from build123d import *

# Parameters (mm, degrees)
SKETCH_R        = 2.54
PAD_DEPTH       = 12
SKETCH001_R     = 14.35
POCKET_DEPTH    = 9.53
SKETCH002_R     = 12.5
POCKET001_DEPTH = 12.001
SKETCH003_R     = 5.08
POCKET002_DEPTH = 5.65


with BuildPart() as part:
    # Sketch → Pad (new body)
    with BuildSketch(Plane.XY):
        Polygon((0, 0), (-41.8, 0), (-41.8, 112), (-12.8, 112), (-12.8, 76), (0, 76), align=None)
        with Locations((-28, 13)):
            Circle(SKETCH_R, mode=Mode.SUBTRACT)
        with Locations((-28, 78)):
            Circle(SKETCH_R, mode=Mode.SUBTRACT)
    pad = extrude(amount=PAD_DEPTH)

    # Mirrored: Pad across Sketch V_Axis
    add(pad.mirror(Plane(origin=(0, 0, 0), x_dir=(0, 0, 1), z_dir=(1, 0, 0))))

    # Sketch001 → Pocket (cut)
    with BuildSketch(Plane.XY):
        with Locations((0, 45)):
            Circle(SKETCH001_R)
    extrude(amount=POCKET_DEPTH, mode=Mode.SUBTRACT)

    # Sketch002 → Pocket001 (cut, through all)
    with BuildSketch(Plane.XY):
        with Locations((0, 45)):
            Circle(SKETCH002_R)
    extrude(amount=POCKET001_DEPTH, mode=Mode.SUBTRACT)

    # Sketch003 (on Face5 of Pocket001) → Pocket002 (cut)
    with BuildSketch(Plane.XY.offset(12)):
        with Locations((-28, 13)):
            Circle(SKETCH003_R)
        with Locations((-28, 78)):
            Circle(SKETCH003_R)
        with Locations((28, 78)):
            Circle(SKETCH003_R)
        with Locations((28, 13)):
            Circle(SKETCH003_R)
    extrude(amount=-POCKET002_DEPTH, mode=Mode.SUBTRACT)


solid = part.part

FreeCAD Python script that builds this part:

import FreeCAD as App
import Part
import Sketcher
from FreeCAD import Vector
Q = App.Units.Quantity


def add_polygon(sketch, points):
    """Adds a closed chain of lines whose ends are joined by coincident constraints."""
    first, n = sketch.GeometryCount, len(points)
    for a, b in zip(points, points[1:] + points[:1]):
        sketch.addGeometry(Part.LineSegment(App.Vector(*a, 0), App.Vector(*b, 0)), False)
    for i in range(n):
        sketch.addConstraint(Sketcher.Constraint("Coincident", first + i, 2, first + (i + 1) % n, 1))

doc = App.newDocument("Part")
body = doc.addObject("PartDesign::Body", "Body")

# Sketch on XY plane
sketch1 = body.newObject("Sketcher::SketchObject", "Sketch")
sketch1.AttachmentSupport = (doc.getObject("XY_Plane"), [""])
sketch1.MapMode = "FlatFace"
add_polygon(sketch1, [(-41.8, 0), (0, 0), (0, 76), (-12.8, 76), (-12.8, 112), (-41.8, 112)])  # lines 0-5
sketch1.addGeometry(Part.Circle(Vector(-28, 13, 0), Vector(0, 0, 1), 2.54), False)  # 6
sketch1.addGeometry(Part.Circle(Vector(-28, 78, 0), Vector(0, 0, 1), 2.54), False)  # 7
sketch1.addConstraint([
    Sketcher.Constraint("Horizontal", 0),
    Sketcher.Constraint("Vertical", 1),
    Sketcher.Constraint("Horizontal", 2),
    Sketcher.Constraint("Vertical", 3),
    Sketcher.Constraint("Horizontal", 4),
    Sketcher.Constraint("Vertical", 5),
    Sketcher.Constraint("Coincident", 0, 2, -1, 1),
    Sketcher.Constraint("Equal", 6, 7),
    Sketcher.Constraint("Vertical", 6, 3, 7, 3),
    Sketcher.Constraint("Diameter", 6, Q("5.08 mm")),
    Sketcher.Constraint("DistanceX", 4, 2, 4, 1, Q("29 mm")),
    Sketcher.Constraint("DistanceY", 1, 1, 1, 2, Q("76 mm")),
    Sketcher.Constraint("DistanceY", 3, 1, 3, 2, Q("36 mm")),
    Sketcher.Constraint("DistanceX", 0, 1, 0, 2, Q("41.8 mm")),
    Sketcher.Constraint("DistanceX", 6, 3, -1, 1, Q("28 mm")),
    Sketcher.Constraint("DistanceY", -1, 1, 6, 3, Q("13 mm")),
    Sketcher.Constraint("DistanceY", -1, 1, 7, 3, Q("78 mm")),
])
pad1 = body.newObject("PartDesign::Pad", "Pad")
pad1.Profile = sketch1
pad1.Length = 12
doc.recompute()

mirrored = body.newObject("PartDesign::Mirrored", "Mirrored")
mirrored.Originals = [pad1]
mirrored.MirrorPlane = (doc.getObject("YZ_Plane"), [""])
body.Tip = mirrored

# Sketch on XY plane
sketch2 = body.newObject("Sketcher::SketchObject", "Sketch001")
sketch2.AttachmentSupport = (doc.getObject("XY_Plane"), [""])
sketch2.MapMode = "FlatFace"
sketch2.addGeometry(Part.Circle(Vector(0, 45, 0), Vector(0, 0, 1), 14.35), False)
sketch2.addConstraint([
    Sketcher.Constraint("PointOnObject", 0, 3, -2),
    Sketcher.Constraint("Diameter", 0, Q("28.7 mm")),
    Sketcher.Constraint("DistanceY", -1, 1, 0, 3, Q("45 mm")),
])
pocket1 = body.newObject("PartDesign::Pocket", "Pocket")
pocket1.Profile = sketch2
pocket1.Length = 9.53
pocket1.Reversed = True

# Sketch on XY plane
sketch3 = body.newObject("Sketcher::SketchObject", "Sketch002")
sketch3.AttachmentSupport = (doc.getObject("XY_Plane"), [""])
sketch3.MapMode = "FlatFace"
sketch3.addGeometry(Part.Circle(Vector(0, 45, 0), Vector(0, 0, 1), 12.5), False)
sketch3.addConstraint([
    Sketcher.Constraint("PointOnObject", 0, 3, -2),
    Sketcher.Constraint("Diameter", 0, Q("25 mm")),
    Sketcher.Constraint("DistanceY", -1, 1, 0, 3, Q("45 mm")),
])
pocket2 = body.newObject("PartDesign::Pocket", "Pocket001")
pocket2.Profile = sketch3
pocket2.Type = "ThroughAll"
pocket2.Reversed = True

# Sketch on XY plane
sketch4 = body.newObject("Sketcher::SketchObject", "Sketch003")
sketch4.AttachmentSupport = (doc.getObject("XY_Plane"), [""])
sketch4.MapMode = "FlatFace"
sketch4.AttachmentOffset = App.Placement(Vector(0, 0, 12), App.Rotation())
sketch4.addGeometry([
    Part.Circle(Vector(-28, 13, 0), Vector(0, 0, 1), 5.08),
    Part.Circle(Vector(-28, 78, 0), Vector(0, 0, 1), 5.08),
    Part.Circle(Vector(28, 78, 0), Vector(0, 0, 1), 5.08),
    Part.Circle(Vector(28, 13, 0), Vector(0, 0, 1), 5.08),
], False)
sketch4.addConstraint([
    Sketcher.Constraint("Equal", 0, 1),
    Sketcher.Constraint("Equal", 1, 2),
    Sketcher.Constraint("Equal", 2, 3),
    Sketcher.Constraint("Symmetric", 1, 3, 2, 3, -2),
    Sketcher.Constraint("Symmetric", 0, 3, 3, 3, -2),
    Sketcher.Constraint("Vertical", 0, 3, 1, 3),
    Sketcher.Constraint("Diameter", 0, Q("10.16 mm")),
    Sketcher.Constraint("DistanceX", 0, 3, -1, 1, Q("28 mm")),
    Sketcher.Constraint("DistanceY", -1, 1, 0, 3, Q("13 mm")),
    Sketcher.Constraint("DistanceY", -1, 1, 1, 3, Q("78 mm")),
])
pocket3 = body.newObject("PartDesign::Pocket", "Pocket002")
pocket3.Profile = sketch4
pocket3.Length = 5.65

doc.recompute()
